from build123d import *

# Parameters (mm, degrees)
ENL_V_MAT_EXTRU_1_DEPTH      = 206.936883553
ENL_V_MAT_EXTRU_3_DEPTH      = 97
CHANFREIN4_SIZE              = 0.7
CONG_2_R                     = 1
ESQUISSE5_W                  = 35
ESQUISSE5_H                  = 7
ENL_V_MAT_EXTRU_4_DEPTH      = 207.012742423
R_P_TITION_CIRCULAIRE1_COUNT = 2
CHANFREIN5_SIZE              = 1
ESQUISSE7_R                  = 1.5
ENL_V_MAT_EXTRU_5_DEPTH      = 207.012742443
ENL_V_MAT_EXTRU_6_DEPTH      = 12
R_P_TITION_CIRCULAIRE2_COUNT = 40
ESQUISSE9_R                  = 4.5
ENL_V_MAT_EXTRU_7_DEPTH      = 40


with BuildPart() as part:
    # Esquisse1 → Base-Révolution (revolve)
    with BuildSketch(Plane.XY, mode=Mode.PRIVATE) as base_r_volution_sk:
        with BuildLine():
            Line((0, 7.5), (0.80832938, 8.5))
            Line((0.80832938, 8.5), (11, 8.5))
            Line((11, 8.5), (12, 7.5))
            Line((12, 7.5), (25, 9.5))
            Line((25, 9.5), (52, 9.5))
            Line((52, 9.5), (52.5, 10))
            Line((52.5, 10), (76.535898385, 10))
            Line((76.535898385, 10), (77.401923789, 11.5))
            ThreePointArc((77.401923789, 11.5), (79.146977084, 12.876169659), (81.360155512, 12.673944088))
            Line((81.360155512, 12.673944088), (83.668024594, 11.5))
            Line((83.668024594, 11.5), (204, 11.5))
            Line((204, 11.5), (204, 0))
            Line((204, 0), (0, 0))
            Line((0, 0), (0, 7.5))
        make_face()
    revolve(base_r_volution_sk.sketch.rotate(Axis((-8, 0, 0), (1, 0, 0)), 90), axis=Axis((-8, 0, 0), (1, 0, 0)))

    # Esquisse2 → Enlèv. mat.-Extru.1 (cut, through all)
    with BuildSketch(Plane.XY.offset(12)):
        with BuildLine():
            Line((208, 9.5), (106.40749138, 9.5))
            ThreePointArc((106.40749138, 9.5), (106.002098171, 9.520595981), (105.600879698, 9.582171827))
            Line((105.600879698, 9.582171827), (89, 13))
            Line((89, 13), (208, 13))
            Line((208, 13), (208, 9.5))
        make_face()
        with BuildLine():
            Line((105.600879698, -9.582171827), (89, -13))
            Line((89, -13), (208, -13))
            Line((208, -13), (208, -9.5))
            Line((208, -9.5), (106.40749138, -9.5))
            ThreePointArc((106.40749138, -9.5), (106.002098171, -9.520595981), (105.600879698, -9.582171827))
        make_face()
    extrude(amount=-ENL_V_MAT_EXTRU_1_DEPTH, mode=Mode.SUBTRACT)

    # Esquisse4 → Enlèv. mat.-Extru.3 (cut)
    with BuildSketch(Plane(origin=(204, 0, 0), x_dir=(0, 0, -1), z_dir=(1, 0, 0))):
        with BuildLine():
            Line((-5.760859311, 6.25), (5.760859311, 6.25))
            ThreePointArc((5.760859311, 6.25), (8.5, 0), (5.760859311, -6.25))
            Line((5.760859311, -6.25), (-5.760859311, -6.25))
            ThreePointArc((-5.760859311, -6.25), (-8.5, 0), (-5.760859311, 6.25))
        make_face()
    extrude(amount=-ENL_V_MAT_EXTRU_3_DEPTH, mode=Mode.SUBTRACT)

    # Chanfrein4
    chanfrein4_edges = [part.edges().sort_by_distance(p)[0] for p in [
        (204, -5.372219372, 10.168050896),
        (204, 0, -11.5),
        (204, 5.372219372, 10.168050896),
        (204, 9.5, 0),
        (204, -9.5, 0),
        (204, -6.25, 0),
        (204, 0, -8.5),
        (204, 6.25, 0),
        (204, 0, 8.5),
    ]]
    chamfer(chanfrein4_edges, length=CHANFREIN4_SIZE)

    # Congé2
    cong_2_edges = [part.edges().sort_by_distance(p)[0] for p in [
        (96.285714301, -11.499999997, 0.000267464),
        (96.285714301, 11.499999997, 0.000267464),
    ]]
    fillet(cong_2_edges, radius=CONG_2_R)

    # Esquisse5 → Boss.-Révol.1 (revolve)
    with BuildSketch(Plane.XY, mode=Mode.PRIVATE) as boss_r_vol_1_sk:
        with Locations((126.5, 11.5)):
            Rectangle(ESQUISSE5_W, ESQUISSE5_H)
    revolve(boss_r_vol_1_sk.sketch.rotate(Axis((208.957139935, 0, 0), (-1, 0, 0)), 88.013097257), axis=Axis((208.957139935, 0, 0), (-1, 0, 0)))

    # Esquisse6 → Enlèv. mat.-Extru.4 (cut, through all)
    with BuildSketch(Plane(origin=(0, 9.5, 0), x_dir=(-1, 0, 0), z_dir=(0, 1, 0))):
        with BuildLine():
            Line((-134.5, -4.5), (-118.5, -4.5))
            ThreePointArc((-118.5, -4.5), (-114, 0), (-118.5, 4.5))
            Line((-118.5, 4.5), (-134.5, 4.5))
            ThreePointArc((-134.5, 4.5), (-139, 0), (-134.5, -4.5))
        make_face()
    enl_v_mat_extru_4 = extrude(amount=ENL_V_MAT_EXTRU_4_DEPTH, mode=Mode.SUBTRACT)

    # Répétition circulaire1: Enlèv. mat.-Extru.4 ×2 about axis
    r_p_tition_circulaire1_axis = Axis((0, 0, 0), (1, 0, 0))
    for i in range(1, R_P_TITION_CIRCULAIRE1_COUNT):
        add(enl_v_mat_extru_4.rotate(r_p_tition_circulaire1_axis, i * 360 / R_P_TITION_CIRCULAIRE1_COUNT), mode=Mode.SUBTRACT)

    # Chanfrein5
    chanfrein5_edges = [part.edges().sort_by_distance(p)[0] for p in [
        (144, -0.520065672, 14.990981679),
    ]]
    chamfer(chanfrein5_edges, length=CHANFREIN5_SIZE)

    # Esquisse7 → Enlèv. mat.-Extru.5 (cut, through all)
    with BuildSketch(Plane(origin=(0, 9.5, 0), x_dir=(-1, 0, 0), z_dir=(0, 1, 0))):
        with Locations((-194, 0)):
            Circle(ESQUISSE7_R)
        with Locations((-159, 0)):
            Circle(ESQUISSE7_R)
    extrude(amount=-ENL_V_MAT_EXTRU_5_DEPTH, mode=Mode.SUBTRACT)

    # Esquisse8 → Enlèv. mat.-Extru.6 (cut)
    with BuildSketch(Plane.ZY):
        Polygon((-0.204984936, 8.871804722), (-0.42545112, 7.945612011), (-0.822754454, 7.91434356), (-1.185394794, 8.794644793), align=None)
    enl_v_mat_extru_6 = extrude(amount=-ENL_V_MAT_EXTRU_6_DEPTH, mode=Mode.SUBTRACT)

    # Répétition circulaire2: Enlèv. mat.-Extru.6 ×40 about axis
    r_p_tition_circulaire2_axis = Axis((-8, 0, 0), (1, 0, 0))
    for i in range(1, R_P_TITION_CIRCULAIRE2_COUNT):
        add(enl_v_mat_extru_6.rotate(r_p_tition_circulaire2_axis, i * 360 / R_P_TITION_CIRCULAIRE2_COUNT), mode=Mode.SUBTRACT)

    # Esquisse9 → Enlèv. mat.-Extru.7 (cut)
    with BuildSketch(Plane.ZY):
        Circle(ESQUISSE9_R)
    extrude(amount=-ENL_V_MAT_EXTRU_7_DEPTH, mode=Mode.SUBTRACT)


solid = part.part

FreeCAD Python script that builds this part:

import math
import FreeCAD as App
import Part
import Sketcher

V = App.Vector
Q = App.Units.Quantity


def edges_at(feature, points):
    """Names of the edges that pass closest to the given points."""
    edges = feature.Shape.Edges
    near = lambda p: min(range(len(edges)), key=lambda i: edges[i].distToShape(Part.Vertex(*p))[0])
    return sorted({f"Edge{near(p) + 1}" for p in points})

doc = App.newDocument("Part")
body = doc.addObject("PartDesign::Body", "Body")

# Sketch on XY plane
sketch1 = body.newObject("Sketcher::SketchObject", "Sketch")
sketch1.AttachmentSupport = (doc.getObject("XY_Plane"), [""])
sketch1.MapMode = "FlatFace"
sketch1.addGeometry([
    Part.LineSegment(V(0.8, 8.5, 0), V(0, 7.5, 0)),  # 0
    Part.LineSegment(V(0, 7.5, 0), V(0, 0, 0)),  # 1
    Part.LineSegment(V(0, 0, 0), V(204, 0, 0)),  # 2
    Part.LineSegment(V(204, 0, 0), V(204, 11.5, 0)),  # 3
    Part.LineSegment(V(204, 11.5, 0), V(83.7, 11.5, 0)),  # 4
    Part.LineSegment(V(83.7, 11.5, 0), V(81.4, 12.7, 0)),  # 5
    Part.ArcOfCircle(Part.Circle(V(80, 10, 0), V(0, 0, 1), 3), math.radians(63), math.radians(150)),  # 6
    Part.LineSegment(V(77.4, 11.5, 0), V(76.5, 10, 0)),  # 7
    Part.LineSegment(V(76.5, 10, 0), V(52.5, 10, 0)),  # 8
    Part.LineSegment(V(52.5, 10, 0), V(52, 9.5, 0)),  # 9
    Part.LineSegment(V(52, 9.5, 0), V(25, 9.5, 0)),  # 10
    Part.LineSegment(V(25, 9.5, 0), V(12, 7.5, 0)),  # 11
    Part.LineSegment(V(12, 7.5, 0), V(11, 8.5, 0)),  # 12
    Part.LineSegment(V(11, 8.5, 0), V(0.8, 8.5, 0)),  # 13
], False)
sketch1.addConstraint([
    Sketcher.Constraint("Coincident", 0, 2, 1, 1),
    Sketcher.Constraint("Coincident", 1, 2, 2, 1),
    Sketcher.Constraint("Coincident", 2, 2, 3, 1),
    Sketcher.Constraint("Coincident", 3, 2, 4, 1),
    Sketcher.Constraint("Coincident", 4, 2, 5, 1),
    Sketcher.Constraint("Tangent", 5, 2, 6, 1),
    Sketcher.Constraint("Tangent", 6, 2, 7, 1),
    Sketcher.Constraint("Coincident", 7, 2, 8, 1),
    Sketcher.Constraint("Coincident", 8, 2, 9, 1),
    Sketcher.Constraint("Coincident", 9, 2, 10, 1),
    Sketcher.Constraint("Coincident", 10, 2, 11, 1),
    Sketcher.Constraint("Coincident", 11, 2, 12, 1),
    Sketcher.Constraint("Coincident", 12, 2, 13, 1),
    Sketcher.Constraint("Coincident", 13, 2, 0, 1),
    Sketcher.Constraint("Vertical", 1),
    Sketcher.Constraint("Horizontal", 2),
    Sketcher.Constraint("Vertical", 3),
    Sketcher.Constraint("Horizontal", 4),
    Sketcher.Constraint("Horizontal", 8),
    Sketcher.Constraint("Horizontal", 10),
    Sketcher.Constraint("Horizontal", 13),
    Sketcher.Constraint("Coincident", 1, 2, -1, 1),
    Sketcher.Constraint("Perpendicular", 9, 12),
    Sketcher.Constraint("Horizontal", 4, 2, 6, 2),
    Sketcher.Constraint("Horizontal", 6, 3, 7, 2),
    Sketcher.Constraint("Horizontal", 0, 2, 11, 2),
    Sketcher.Constraint("Radius", 6, 3.0),
    Sketcher.Constraint("DistanceX", 2, 1, 2, 2, 204.0),
    Sketcher.Constraint("DistanceX", 10, 2, 10, 1, 27.0),
    Sketcher.Constraint("Angle", 7, Q("-120 deg")),
    Sketcher.Constraint("Angle", 9, Q("-135 deg")),
    Sketcher.Constraint("DistanceY", 1, 2, 1, 1, 7.5),
    Sketcher.Constraint("DistanceY", 3, 1, 3, 2, 11.5),
    Sketcher.Constraint("DistanceX", -1, 1, 6, 3, 80.0),
    Sketcher.Constraint("DistanceX", -1, 1, 9, 2, 52.0),
    Sketcher.Constraint("DistanceX", -1, 1, 11, 2, 12.0),
    Sketcher.Constraint("DistanceX", -1, 1, 12, 2, 11.0),
    Sketcher.Constraint("DistanceY", 9, 2, 6, 2, 2.0),
    Sketcher.Constraint("DistanceX", 13, 2, 13, 1, 10.191671),
    Sketcher.Constraint("DistanceX", 6, 2, 4, 2, 6.266101),
])
revolution = body.newObject("PartDesign::Revolution", "Revolution")
revolution.Profile = sketch1
revolution.ReferenceAxis = (sketch1, ["H_Axis"])
revolution.Angle = 360

# Sketch on XY plane
sketch2 = body.newObject("Sketcher::SketchObject", "Sketch001")
sketch2.AttachmentSupport = (doc.getObject("XY_Plane"), [""])
sketch2.MapMode = "FlatFace"
sketch2.AttachmentOffset = App.Placement(V(0, 0, 12), App.Rotation())
sketch2.addGeometry([
    Part.LineSegment(V(106.4, 9.5, 0), V(208, 9.5, 0)),  # 0
    Part.LineSegment(V(208, 9.5, 0), V(208, 13, 0)),  # 1
    Part.LineSegment(V(208, 13, 0), V(89, 13, 0)),  # 2
    Part.LineSegment(V(89, 13, 0), V(105.6, 9.6, 0)),  # 3
    Part.ArcOfCircle(Part.Circle(V(106.4, 13.5, 0), V(0, 0, 1), 4), math.radians(-101.63), math.radians(-90)),  # 4
    Part.LineSegment(V(105.6, -9.6, 0), V(89, -13, 0)),  # 5
    Part.LineSegment(V(89, -13, 0), V(208, -13, 0)),  # 6
    Part.LineSegment(V(208, -13, 0), V(208, -9.5, 0)),  # 7
    Part.LineSegment(V(208, -9.5, 0), V(106.4, -9.5, 0)),  # 8
    Part.ArcOfCircle(Part.Circle(V(106.4, -13.5, 0), V(0, 0, 1), 4), math.radians(90), math.radians(101.63)),  # 9
], False)
sketch2.addConstraint([
    Sketcher.Constraint("Coincident", 0, 2, 1, 1),
    Sketcher.Constraint("Coincident", 1, 2, 2, 1),
    Sketcher.Constraint("Coincident", 2, 2, 3, 1),
    Sketcher.Constraint("Tangent", 3, 2, 4, 1),
    Sketcher.Constraint("Tangent", 4, 2, 0, 1),
    Sketcher.Constraint("Coincident", 5, 2, 6, 1),
    Sketcher.Constraint("Coincident", 6, 2, 7, 1),
    Sketcher.Constraint("Coincident", 7, 2, 8, 1),
    Sketcher.Constraint("Tangent", 8, 2, 9, 1),
    Sketcher.Constraint("Tangent", 9, 2, 5, 1),
    Sketcher.Constraint("Horizontal", 0),
    Sketcher.Constraint("Vertical", 1),
    Sketcher.Constraint("Horizontal", 2),
    Sketcher.Constraint("Horizontal", 6),
    Sketcher.Constraint("Vertical", 7),
    Sketcher.Constraint("Horizontal", 8),
    Sketcher.Constraint("Equal", 4, 9),
    Sketcher.Constraint("Symmetric", 4, 3, 9, 3, -1),
    Sketcher.Constraint("Symmetric", 2, 2, 5, 2, -1),
    Sketcher.Constraint("Vertical", 1, 2, 6, 2),
    Sketcher.Constraint("Radius", 4, 4.0),
    Sketcher.Constraint("DistanceX", 2, 2, 2, 1, 119.0),
    Sketcher.Constraint("DistanceY", 1, 1, 1, 2, 3.5),
    Sketcher.Constraint("DistanceX", -1, 1, 0, 2, 208.0),
    Sketcher.Constraint("DistanceY", -1, 1, 1, 2, 13.0),
    Sketcher.Constraint("DistanceX", 0, 1, 0, 2, 101.592509),
])
pocket1 = body.newObject("PartDesign::Pocket", "Pocket")
pocket1.Profile = sketch2
pocket1.Type = "ThroughAll"

# Sketch on YZ plane
sketch3 = body.newObject("Sketcher::SketchObject", "Sketch002")
sketch3.AttachmentSupport = (doc.getObject("YZ_Plane"), [""])
sketch3.MapMode = "FlatFace"
sketch3.AttachmentOffset = App.Placement(V(0, 0, 204), App.Rotation())
sketch3.addGeometry([
    Part.LineSegment(V(6, -6, 0), V(6, 6, 0)),
    Part.ArcOfCircle(Part.Circle(V(0, 0, 0), V(0, 0, 1), 8), math.radians(43), math.radians(137)),
    Part.LineSegment(V(-6, 6, 0), V(-6, -6, 0)),
    Part.ArcOfCircle(Part.Circle(V(0, 0, 0), V(0, 0, 1), 8), math.radians(-137), math.radians(-43)),
], False)
sketch3.addConstraint([
    Sketcher.Constraint("Coincident", 0, 2, 1, 1),
    Sketcher.Constraint("Coincident", 1, 2, 2, 1),
    Sketcher.Constraint("Coincident", 2, 2, 3, 1),
    Sketcher.Constraint("Coincident", 3, 2, 0, 1),
    Sketcher.Constraint("Vertical", 0),
    Sketcher.Constraint("Vertical", 2),
    Sketcher.Constraint("Coincident", 1, 3, -1, 1),
    Sketcher.Constraint("Coincident", 3, 3, -1, 1),
    Sketcher.Constraint("Equal", 1, 3),
    Sketcher.Constraint("Horizontal", 0, 2, 1, 2),
    Sketcher.Constraint("Radius", 1, 8.5),
    Sketcher.Constraint("DistanceX", 1, 2, 0, 2, 12.5),
])
pocket2 = body.newObject("PartDesign::Pocket", "Pocket001")
pocket2.Profile = sketch3
pocket2.Length = 97
doc.recompute()

chamfer = body.newObject("PartDesign::Chamfer", "Chamfer")
chamfer.Base = (pocket2, edges_at(pocket2, [
    (204, -5.372, 10.168),
    (204, 0, -11.5),
    (204, 5.372, 10.168),
    (204, 9.5, 0),
    (204, -9.5, 0),
    (204, -6.25, 0),
    (204, 0, -8.5),
    (204, 6.25, 0),
    (204, 0, 8.5),
]))
chamfer.Size = 0.7
doc.recompute()

fillet = body.newObject("PartDesign::Fillet", "Fillet")
fillet.Base = (chamfer, edges_at(chamfer, [(96.286, -11.5, 0), (96.286, 11.5, 0)]))
fillet.Radius = 1

# Sketch on XY plane
sketch4 = body.newObject("Sketcher::SketchObject", "Sketch003")
sketch4.AttachmentSupport = (doc.getObject("XY_Plane"), [""])
sketch4.MapMode = "FlatFace"
sketch4.addGeometry([
    Part.LineSegment(V(109, 15, 0), V(109, 8, 0)),
    Part.LineSegment(V(109, 8, 0), V(144, 8, 0)),
    Part.LineSegment(V(144, 8, 0), V(144, 15, 0)),
    Part.LineSegment(V(144, 15, 0), V(109, 15, 0)),
], False)
sketch4.addConstraint([
    Sketcher.Constraint("Coincident", 0, 2, 1, 1),
    Sketcher.Constraint("Coincident", 1, 2, 2, 1),
    Sketcher.Constraint("Coincident", 2, 2, 3, 1),
    Sketcher.Constraint("Coincident", 3, 2, 0, 1),
    Sketcher.Constraint("Vertical", 0),
    Sketcher.Constraint("Horizontal", 1),
    Sketcher.Constraint("Vertical", 2),
    Sketcher.Constraint("Horizontal", 3),
    Sketcher.Constraint("DistanceX", 1, 1, 1, 2, 35.0),
    Sketcher.Constraint("DistanceY", 0, 2, 0, 1, 7.0),
    Sketcher.Constraint("DistanceX", -1, 1, 0, 2, 109.0),
    Sketcher.Constraint("DistanceY", -1, 1, 0, 2, 8.0),
])
revolution2 = body.newObject("PartDesign::Revolution", "Revolution001")
revolution2.Profile = sketch4
revolution2.ReferenceAxis = (sketch4, ["H_Axis"])
revolution2.Angle = 360

# Sketch on XZ plane
sketch5 = body.newObject("Sketcher::SketchObject", "Sketch004")
sketch5.AttachmentSupport = (doc.getObject("XZ_Plane"), [""])
sketch5.MapMode = "FlatFace"
sketch5.AttachmentOffset = App.Placement(V(0, 0, -9.5), App.Rotation())
sketch5.addGeometry([
    Part.LineSegment(V(134.5, -4.5, 0), V(118.5, -4.5, 0)),
    Part.ArcOfCircle(Part.Circle(V(118.5, 0, 0), V(0, 0, 1), 4.5), math.radians(90), math.radians(270)),
    Part.LineSegment(V(118.5, 4.5, 0), V(134.5, 4.5, 0)),
    Part.ArcOfCircle(Part.Circle(V(134.5, 0, 0), V(0, 0, 1), 4.5), math.radians(-90), math.radians(90)),
], False)
sketch5.addConstraint([
    Sketcher.Constraint("Tangent", 0, 2, 1, 2),
    Sketcher.Constraint("Tangent", 1, 1, 2, 1),
    Sketcher.Constraint("Tangent", 2, 2, 3, 2),
    Sketcher.Constraint("Tangent", 3, 1, 0, 1),
    Sketcher.Constraint("Horizontal", 0),
    Sketcher.Constraint("Horizontal", 2),
    Sketcher.Constraint("PointOnObject", 1, 3, -1),
    Sketcher.Constraint("Radius", 1, 4.5),
    Sketcher.Constraint("DistanceX", 0, 2, 0, 1, 16.0),
    Sketcher.Constraint("DistanceX", -1, 1, 1, 3, 118.5),
])
pocket3 = body.newObject("PartDesign::Pocket", "Pocket002")
pocket3.Profile = sketch5
pocket3.Type = "ThroughAll"
doc.recompute()

polarpattern = body.newObject("PartDesign::PolarPattern", "PolarPattern")
polarpattern.Originals = [pocket3]
polarpattern.Axis = (doc.getObject("X_Axis"), [""])
polarpattern.Angle = 360
polarpattern.Occurrences = 2
body.Tip = polarpattern
doc.recompute()

chamfer2 = body.newObject("PartDesign::Chamfer", "Chamfer001")
chamfer2.Base = (polarpattern, edges_at(polarpattern, [(144, -0.52, 14.991)]))
chamfer2.Size = 1

# Sketch on XZ plane
sketch6 = body.newObject("Sketcher::SketchObject", "Sketch005")
sketch6.AttachmentSupport = (doc.getObject("XZ_Plane"), [""])
sketch6.MapMode = "FlatFace"
sketch6.AttachmentOffset = App.Placement(V(0, 0, -9.5), App.Rotation())
sketch6.addGeometry([
    Part.Circle(V(194, 0, 0), V(0, 0, 1), 1.5),
    Part.Circle(V(159, 0, 0), V(0, 0, 1), 1.5),
], False)
sketch6.addConstraint([
    Sketcher.Constraint("Equal", 0, 1),
    Sketcher.Constraint("PointOnObject", 0, 3, -1),
    Sketcher.Constraint("PointOnObject", 1, 3, -1),
    Sketcher.Constraint("Diameter", 0, 3.0),
    Sketcher.Constraint("DistanceX", -1, 1, 0, 3, 194.0),
    Sketcher.Constraint("DistanceX", -1, 1, 1, 3, 159.0),
])
pocket4 = body.newObject("PartDesign::Pocket", "Pocket003")
pocket4.Profile = sketch6
pocket4.Type = "ThroughAll"
pocket4.Reversed = True

# Sketch on YZ plane
sketch7 = body.newObject("Sketcher::SketchObject", "Sketch006")
sketch7.AttachmentSupport = (doc.getObject("YZ_Plane"), [""])
sketch7.MapMode = "FlatFace"
sketch7.addGeometry([
    Part.LineSegment(V(7.95, -0.43, 0), V(8.87, -0.2, 0)),
    Part.LineSegment(V(8.87, -0.2, 0), V(8.79, -1.19, 0)),
    Part.LineSegment(V(8.79, -1.19, 0), V(7.91, -0.82, 0)),
    Part.LineSegment(V(7.91, -0.82, 0), V(7.95, -0.43, 0)),
], False)
sketch7.addConstraint([
    Sketcher.Constraint("Coincident", 0, 2, 1, 1),
    Sketcher.Constraint("Coincident", 1, 2, 2, 1),
    Sketcher.Constraint("Coincident", 2, 2, 3, 1),
    Sketcher.Constraint("Coincident", 3, 2, 0, 1),
    Sketcher.Constraint("Parallel", 1, 3),
    Sketcher.Constraint("Equal", 0, 2),
    Sketcher.Constraint("Angle", 1, Q("-94.5 deg")),
    Sketcher.Constraint("DistanceX", 2, 2, 1, 2, 0.880301),
    Sketcher.Constraint("Distance", 0, 0.952071),
    Sketcher.Constraint("Distance", 1, 0.983441),
    Sketcher.Constraint("DistanceY", 3, 2, -1, 1, 0.425451),
    Sketcher.Constraint("DistanceX", -1, 1, 0, 2, 8.871805),
])
pocket5 = body.newObject("PartDesign::Pocket", "Pocket004")
pocket5.Profile = sketch7
pocket5.Length = 12
pocket5.Reversed = True
doc.recompute()

polarpattern2 = body.newObject("PartDesign::PolarPattern", "PolarPattern001")
polarpattern2.Originals = [pocket5]
polarpattern2.Axis = (doc.getObject("X_Axis"), [""])
polarpattern2.Angle = 360
polarpattern2.Occurrences = 40
body.Tip = polarpattern2

# Sketch on YZ plane
sketch8 = body.newObject("Sketcher::SketchObject", "Sketch007")
sketch8.AttachmentSupport = (doc.getObject("YZ_Plane"), [""])
sketch8.MapMode = "FlatFace"
sketch8.addGeometry(Part.Circle(V(0, 0, 0), V(0, 0, 1), 4.5), False)
sketch8.addConstraint([
    Sketcher.Constraint("Coincident", 0, 3, -1, 1),
    Sketcher.Constraint("Diameter", 0, 9.0),
])
pocket6 = body.newObject("PartDesign::Pocket", "Pocket005")
pocket6.Profile = sketch8
pocket6.Length = 40
pocket6.Reversed = True

doc.recompute()
